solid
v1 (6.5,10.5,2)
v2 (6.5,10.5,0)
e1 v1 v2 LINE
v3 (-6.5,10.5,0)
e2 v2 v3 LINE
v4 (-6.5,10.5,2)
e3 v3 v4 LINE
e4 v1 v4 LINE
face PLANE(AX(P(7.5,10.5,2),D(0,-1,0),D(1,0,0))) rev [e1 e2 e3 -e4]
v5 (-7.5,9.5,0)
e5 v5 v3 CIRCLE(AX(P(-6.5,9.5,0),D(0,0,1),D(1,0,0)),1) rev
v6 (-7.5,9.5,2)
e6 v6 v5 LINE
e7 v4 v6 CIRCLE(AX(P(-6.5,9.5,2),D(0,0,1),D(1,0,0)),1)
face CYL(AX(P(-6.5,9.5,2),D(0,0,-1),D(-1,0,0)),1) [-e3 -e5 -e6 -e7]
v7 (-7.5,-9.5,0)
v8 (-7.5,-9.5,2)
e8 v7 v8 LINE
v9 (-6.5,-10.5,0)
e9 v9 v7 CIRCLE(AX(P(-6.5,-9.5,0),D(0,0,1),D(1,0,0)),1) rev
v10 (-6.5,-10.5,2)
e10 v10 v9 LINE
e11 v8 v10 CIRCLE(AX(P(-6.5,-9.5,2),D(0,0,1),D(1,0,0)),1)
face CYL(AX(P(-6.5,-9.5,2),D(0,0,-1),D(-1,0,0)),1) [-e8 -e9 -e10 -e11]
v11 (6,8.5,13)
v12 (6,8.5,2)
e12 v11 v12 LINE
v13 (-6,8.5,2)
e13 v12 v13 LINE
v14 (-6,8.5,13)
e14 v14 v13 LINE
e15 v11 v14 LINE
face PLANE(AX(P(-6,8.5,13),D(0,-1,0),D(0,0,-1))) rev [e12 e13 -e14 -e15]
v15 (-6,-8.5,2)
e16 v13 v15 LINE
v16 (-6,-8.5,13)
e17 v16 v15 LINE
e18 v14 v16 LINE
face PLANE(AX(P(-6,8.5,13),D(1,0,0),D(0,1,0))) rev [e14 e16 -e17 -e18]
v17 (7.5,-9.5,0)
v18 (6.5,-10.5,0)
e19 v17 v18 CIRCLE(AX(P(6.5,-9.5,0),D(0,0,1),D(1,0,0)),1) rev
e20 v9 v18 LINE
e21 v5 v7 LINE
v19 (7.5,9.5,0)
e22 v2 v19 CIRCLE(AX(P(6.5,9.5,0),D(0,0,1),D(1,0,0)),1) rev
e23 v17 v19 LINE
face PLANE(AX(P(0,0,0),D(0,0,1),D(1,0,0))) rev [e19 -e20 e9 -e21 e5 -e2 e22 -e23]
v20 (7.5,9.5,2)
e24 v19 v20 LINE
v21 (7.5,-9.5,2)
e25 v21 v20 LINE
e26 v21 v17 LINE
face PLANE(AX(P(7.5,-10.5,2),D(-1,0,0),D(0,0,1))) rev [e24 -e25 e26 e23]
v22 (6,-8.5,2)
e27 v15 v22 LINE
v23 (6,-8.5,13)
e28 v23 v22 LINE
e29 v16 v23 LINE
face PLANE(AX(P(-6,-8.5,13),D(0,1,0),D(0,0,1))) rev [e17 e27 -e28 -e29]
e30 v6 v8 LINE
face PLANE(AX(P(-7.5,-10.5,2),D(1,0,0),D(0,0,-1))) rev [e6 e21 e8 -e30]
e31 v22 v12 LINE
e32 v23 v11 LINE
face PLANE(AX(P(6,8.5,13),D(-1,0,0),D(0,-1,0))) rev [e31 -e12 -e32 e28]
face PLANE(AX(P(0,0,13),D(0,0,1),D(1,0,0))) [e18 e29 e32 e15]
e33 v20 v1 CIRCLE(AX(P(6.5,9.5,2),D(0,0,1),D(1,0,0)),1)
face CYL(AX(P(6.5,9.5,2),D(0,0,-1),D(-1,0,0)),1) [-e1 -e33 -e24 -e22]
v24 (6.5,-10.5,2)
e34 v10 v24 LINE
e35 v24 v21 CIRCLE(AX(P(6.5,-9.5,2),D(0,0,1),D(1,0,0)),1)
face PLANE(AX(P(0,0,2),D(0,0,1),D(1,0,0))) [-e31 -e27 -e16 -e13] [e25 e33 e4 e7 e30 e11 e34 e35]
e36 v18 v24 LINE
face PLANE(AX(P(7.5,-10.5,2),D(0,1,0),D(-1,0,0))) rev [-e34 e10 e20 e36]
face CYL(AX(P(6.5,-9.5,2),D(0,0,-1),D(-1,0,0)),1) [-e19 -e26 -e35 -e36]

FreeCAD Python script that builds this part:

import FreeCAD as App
import Part
import Sketcher

V = App.Vector


def edges_at(feature, points):
    """Names of the edges that pass closest to the given points."""
    edges = feature.Shape.Edges
    near = lambda p: min(range(len(edges)), key=lambda i: edges[i].distToShape(Part.Vertex(*p))[0])
    return sorted({f"Edge{near(p) + 1}" for p in points})


def add_polygon(sketch, points):
    """Adds a closed chain of lines whose ends are joined by coincident constraints."""
    first, n = sketch.GeometryCount, len(points)
    for a, b in zip(points, points[1:] + points[:1]):
        sketch.addGeometry(Part.LineSegment(App.Vector(*a, 0), App.Vector(*b, 0)), False)
    for i in range(n):
        sketch.addConstraint(Sketcher.Constraint("Coincident", first + i, 2, first + (i + 1) % n, 1))

doc = App.newDocument("Part")
params = doc.addObject("Spreadsheet::Sheet", "Params")
for row, (alias, value) in enumerate([
    ("sketch1_width", "12 mm"),
    ("sketch1_height", "17 mm"),
    ("pad1_length", "13 mm"),
    ("sketch2_width", "15 mm"),
    ("sketch2_height", "21 mm"),
    ("pad2_length", "2 mm"),
    ("fillet_radius", "1 mm"),
], start=1):
    params.set(f"A{row}", alias)
    params.set(f"B{row}", "=" + value)
    params.setAlias(f"B{row}", alias)

body = doc.addObject("PartDesign::Body", "Body")

sketch1 = body.newObject("Sketcher::SketchObject", "Sketch")
sketch1.AttachmentSupport = (doc.getObject("XY_Plane"), [""])
sketch1.MapMode = "FlatFace"
add_polygon(sketch1, [(-6, 8), (-6, -8), (6, -8), (6, 8)])
sketch1.addConstraint(Sketcher.Constraint("Vertical", 0))
sketch1.addConstraint(Sketcher.Constraint("Horizontal", 1))
sketch1.addConstraint(Sketcher.Constraint("Vertical", 2))
sketch1.addConstraint(Sketcher.Constraint("Horizontal", 3))
sketch1.addConstraint(Sketcher.Constraint("Symmetric", 0, 2, 2, 2, -1, 1))
sketch1.addConstraint(Sketcher.Constraint("DistanceX", 1, 1, 1, 2, 12.0))
sketch1.addConstraint(Sketcher.Constraint("DistanceY", 0, 2, 0, 1, 17.0))
sketch1.setExpression("Constraints[9]", "Params.sketch1_width")
sketch1.setExpression("Constraints[10]", "Params.sketch1_height")
pad1 = body.newObject("PartDesign::Pad", "Pad")
pad1.Profile = sketch1
pad1.setExpression("Length", "Params.pad1_length")

sketch2 = body.newObject("Sketcher::SketchObject", "Sketch001")
sketch2.AttachmentSupport = (doc.getObject("XY_Plane"), [""])
sketch2.MapMode = "FlatFace"
add_polygon(sketch2, [(-8, 10), (-8, -10), (8, -10), (8, 10)])
sketch2.addConstraint(Sketcher.Constraint("Vertical", 0))
sketch2.addConstraint(Sketcher.Constraint("Horizontal", 1))
sketch2.addConstraint(Sketcher.Constraint("Vertical", 2))
sketch2.addConstraint(Sketcher.Constraint("Horizontal", 3))
sketch2.addConstraint(Sketcher.Constraint("Symmetric", 0, 2, 2, 2, -1, 1))
sketch2.addConstraint(Sketcher.Constraint("DistanceX", 1, 1, 1, 2, 15.0))
sketch2.addConstraint(Sketcher.Constraint("DistanceY", 0, 2, 0, 1, 21.0))
sketch2.setExpression("Constraints[9]", "Params.sketch2_width")
sketch2.setExpression("Constraints[10]", "Params.sketch2_height")
pad2 = body.newObject("PartDesign::Pad", "Pad001")
pad2.Profile = sketch2
pad2.setExpression("Length", "Params.pad2_length")
doc.recompute()

fillet = body.newObject("PartDesign::Fillet", "Fillet")
fillet.Base = (pad2, edges_at(pad2, [
    (-7.5, 10.5, 1),
    (-7.5, -10.5, 1),
    (7.5, -10.5, 1),
    (7.5, 10.5, 1),
]))
fillet.setExpression("Radius", "Params.fillet_radius")

doc.recompute()
